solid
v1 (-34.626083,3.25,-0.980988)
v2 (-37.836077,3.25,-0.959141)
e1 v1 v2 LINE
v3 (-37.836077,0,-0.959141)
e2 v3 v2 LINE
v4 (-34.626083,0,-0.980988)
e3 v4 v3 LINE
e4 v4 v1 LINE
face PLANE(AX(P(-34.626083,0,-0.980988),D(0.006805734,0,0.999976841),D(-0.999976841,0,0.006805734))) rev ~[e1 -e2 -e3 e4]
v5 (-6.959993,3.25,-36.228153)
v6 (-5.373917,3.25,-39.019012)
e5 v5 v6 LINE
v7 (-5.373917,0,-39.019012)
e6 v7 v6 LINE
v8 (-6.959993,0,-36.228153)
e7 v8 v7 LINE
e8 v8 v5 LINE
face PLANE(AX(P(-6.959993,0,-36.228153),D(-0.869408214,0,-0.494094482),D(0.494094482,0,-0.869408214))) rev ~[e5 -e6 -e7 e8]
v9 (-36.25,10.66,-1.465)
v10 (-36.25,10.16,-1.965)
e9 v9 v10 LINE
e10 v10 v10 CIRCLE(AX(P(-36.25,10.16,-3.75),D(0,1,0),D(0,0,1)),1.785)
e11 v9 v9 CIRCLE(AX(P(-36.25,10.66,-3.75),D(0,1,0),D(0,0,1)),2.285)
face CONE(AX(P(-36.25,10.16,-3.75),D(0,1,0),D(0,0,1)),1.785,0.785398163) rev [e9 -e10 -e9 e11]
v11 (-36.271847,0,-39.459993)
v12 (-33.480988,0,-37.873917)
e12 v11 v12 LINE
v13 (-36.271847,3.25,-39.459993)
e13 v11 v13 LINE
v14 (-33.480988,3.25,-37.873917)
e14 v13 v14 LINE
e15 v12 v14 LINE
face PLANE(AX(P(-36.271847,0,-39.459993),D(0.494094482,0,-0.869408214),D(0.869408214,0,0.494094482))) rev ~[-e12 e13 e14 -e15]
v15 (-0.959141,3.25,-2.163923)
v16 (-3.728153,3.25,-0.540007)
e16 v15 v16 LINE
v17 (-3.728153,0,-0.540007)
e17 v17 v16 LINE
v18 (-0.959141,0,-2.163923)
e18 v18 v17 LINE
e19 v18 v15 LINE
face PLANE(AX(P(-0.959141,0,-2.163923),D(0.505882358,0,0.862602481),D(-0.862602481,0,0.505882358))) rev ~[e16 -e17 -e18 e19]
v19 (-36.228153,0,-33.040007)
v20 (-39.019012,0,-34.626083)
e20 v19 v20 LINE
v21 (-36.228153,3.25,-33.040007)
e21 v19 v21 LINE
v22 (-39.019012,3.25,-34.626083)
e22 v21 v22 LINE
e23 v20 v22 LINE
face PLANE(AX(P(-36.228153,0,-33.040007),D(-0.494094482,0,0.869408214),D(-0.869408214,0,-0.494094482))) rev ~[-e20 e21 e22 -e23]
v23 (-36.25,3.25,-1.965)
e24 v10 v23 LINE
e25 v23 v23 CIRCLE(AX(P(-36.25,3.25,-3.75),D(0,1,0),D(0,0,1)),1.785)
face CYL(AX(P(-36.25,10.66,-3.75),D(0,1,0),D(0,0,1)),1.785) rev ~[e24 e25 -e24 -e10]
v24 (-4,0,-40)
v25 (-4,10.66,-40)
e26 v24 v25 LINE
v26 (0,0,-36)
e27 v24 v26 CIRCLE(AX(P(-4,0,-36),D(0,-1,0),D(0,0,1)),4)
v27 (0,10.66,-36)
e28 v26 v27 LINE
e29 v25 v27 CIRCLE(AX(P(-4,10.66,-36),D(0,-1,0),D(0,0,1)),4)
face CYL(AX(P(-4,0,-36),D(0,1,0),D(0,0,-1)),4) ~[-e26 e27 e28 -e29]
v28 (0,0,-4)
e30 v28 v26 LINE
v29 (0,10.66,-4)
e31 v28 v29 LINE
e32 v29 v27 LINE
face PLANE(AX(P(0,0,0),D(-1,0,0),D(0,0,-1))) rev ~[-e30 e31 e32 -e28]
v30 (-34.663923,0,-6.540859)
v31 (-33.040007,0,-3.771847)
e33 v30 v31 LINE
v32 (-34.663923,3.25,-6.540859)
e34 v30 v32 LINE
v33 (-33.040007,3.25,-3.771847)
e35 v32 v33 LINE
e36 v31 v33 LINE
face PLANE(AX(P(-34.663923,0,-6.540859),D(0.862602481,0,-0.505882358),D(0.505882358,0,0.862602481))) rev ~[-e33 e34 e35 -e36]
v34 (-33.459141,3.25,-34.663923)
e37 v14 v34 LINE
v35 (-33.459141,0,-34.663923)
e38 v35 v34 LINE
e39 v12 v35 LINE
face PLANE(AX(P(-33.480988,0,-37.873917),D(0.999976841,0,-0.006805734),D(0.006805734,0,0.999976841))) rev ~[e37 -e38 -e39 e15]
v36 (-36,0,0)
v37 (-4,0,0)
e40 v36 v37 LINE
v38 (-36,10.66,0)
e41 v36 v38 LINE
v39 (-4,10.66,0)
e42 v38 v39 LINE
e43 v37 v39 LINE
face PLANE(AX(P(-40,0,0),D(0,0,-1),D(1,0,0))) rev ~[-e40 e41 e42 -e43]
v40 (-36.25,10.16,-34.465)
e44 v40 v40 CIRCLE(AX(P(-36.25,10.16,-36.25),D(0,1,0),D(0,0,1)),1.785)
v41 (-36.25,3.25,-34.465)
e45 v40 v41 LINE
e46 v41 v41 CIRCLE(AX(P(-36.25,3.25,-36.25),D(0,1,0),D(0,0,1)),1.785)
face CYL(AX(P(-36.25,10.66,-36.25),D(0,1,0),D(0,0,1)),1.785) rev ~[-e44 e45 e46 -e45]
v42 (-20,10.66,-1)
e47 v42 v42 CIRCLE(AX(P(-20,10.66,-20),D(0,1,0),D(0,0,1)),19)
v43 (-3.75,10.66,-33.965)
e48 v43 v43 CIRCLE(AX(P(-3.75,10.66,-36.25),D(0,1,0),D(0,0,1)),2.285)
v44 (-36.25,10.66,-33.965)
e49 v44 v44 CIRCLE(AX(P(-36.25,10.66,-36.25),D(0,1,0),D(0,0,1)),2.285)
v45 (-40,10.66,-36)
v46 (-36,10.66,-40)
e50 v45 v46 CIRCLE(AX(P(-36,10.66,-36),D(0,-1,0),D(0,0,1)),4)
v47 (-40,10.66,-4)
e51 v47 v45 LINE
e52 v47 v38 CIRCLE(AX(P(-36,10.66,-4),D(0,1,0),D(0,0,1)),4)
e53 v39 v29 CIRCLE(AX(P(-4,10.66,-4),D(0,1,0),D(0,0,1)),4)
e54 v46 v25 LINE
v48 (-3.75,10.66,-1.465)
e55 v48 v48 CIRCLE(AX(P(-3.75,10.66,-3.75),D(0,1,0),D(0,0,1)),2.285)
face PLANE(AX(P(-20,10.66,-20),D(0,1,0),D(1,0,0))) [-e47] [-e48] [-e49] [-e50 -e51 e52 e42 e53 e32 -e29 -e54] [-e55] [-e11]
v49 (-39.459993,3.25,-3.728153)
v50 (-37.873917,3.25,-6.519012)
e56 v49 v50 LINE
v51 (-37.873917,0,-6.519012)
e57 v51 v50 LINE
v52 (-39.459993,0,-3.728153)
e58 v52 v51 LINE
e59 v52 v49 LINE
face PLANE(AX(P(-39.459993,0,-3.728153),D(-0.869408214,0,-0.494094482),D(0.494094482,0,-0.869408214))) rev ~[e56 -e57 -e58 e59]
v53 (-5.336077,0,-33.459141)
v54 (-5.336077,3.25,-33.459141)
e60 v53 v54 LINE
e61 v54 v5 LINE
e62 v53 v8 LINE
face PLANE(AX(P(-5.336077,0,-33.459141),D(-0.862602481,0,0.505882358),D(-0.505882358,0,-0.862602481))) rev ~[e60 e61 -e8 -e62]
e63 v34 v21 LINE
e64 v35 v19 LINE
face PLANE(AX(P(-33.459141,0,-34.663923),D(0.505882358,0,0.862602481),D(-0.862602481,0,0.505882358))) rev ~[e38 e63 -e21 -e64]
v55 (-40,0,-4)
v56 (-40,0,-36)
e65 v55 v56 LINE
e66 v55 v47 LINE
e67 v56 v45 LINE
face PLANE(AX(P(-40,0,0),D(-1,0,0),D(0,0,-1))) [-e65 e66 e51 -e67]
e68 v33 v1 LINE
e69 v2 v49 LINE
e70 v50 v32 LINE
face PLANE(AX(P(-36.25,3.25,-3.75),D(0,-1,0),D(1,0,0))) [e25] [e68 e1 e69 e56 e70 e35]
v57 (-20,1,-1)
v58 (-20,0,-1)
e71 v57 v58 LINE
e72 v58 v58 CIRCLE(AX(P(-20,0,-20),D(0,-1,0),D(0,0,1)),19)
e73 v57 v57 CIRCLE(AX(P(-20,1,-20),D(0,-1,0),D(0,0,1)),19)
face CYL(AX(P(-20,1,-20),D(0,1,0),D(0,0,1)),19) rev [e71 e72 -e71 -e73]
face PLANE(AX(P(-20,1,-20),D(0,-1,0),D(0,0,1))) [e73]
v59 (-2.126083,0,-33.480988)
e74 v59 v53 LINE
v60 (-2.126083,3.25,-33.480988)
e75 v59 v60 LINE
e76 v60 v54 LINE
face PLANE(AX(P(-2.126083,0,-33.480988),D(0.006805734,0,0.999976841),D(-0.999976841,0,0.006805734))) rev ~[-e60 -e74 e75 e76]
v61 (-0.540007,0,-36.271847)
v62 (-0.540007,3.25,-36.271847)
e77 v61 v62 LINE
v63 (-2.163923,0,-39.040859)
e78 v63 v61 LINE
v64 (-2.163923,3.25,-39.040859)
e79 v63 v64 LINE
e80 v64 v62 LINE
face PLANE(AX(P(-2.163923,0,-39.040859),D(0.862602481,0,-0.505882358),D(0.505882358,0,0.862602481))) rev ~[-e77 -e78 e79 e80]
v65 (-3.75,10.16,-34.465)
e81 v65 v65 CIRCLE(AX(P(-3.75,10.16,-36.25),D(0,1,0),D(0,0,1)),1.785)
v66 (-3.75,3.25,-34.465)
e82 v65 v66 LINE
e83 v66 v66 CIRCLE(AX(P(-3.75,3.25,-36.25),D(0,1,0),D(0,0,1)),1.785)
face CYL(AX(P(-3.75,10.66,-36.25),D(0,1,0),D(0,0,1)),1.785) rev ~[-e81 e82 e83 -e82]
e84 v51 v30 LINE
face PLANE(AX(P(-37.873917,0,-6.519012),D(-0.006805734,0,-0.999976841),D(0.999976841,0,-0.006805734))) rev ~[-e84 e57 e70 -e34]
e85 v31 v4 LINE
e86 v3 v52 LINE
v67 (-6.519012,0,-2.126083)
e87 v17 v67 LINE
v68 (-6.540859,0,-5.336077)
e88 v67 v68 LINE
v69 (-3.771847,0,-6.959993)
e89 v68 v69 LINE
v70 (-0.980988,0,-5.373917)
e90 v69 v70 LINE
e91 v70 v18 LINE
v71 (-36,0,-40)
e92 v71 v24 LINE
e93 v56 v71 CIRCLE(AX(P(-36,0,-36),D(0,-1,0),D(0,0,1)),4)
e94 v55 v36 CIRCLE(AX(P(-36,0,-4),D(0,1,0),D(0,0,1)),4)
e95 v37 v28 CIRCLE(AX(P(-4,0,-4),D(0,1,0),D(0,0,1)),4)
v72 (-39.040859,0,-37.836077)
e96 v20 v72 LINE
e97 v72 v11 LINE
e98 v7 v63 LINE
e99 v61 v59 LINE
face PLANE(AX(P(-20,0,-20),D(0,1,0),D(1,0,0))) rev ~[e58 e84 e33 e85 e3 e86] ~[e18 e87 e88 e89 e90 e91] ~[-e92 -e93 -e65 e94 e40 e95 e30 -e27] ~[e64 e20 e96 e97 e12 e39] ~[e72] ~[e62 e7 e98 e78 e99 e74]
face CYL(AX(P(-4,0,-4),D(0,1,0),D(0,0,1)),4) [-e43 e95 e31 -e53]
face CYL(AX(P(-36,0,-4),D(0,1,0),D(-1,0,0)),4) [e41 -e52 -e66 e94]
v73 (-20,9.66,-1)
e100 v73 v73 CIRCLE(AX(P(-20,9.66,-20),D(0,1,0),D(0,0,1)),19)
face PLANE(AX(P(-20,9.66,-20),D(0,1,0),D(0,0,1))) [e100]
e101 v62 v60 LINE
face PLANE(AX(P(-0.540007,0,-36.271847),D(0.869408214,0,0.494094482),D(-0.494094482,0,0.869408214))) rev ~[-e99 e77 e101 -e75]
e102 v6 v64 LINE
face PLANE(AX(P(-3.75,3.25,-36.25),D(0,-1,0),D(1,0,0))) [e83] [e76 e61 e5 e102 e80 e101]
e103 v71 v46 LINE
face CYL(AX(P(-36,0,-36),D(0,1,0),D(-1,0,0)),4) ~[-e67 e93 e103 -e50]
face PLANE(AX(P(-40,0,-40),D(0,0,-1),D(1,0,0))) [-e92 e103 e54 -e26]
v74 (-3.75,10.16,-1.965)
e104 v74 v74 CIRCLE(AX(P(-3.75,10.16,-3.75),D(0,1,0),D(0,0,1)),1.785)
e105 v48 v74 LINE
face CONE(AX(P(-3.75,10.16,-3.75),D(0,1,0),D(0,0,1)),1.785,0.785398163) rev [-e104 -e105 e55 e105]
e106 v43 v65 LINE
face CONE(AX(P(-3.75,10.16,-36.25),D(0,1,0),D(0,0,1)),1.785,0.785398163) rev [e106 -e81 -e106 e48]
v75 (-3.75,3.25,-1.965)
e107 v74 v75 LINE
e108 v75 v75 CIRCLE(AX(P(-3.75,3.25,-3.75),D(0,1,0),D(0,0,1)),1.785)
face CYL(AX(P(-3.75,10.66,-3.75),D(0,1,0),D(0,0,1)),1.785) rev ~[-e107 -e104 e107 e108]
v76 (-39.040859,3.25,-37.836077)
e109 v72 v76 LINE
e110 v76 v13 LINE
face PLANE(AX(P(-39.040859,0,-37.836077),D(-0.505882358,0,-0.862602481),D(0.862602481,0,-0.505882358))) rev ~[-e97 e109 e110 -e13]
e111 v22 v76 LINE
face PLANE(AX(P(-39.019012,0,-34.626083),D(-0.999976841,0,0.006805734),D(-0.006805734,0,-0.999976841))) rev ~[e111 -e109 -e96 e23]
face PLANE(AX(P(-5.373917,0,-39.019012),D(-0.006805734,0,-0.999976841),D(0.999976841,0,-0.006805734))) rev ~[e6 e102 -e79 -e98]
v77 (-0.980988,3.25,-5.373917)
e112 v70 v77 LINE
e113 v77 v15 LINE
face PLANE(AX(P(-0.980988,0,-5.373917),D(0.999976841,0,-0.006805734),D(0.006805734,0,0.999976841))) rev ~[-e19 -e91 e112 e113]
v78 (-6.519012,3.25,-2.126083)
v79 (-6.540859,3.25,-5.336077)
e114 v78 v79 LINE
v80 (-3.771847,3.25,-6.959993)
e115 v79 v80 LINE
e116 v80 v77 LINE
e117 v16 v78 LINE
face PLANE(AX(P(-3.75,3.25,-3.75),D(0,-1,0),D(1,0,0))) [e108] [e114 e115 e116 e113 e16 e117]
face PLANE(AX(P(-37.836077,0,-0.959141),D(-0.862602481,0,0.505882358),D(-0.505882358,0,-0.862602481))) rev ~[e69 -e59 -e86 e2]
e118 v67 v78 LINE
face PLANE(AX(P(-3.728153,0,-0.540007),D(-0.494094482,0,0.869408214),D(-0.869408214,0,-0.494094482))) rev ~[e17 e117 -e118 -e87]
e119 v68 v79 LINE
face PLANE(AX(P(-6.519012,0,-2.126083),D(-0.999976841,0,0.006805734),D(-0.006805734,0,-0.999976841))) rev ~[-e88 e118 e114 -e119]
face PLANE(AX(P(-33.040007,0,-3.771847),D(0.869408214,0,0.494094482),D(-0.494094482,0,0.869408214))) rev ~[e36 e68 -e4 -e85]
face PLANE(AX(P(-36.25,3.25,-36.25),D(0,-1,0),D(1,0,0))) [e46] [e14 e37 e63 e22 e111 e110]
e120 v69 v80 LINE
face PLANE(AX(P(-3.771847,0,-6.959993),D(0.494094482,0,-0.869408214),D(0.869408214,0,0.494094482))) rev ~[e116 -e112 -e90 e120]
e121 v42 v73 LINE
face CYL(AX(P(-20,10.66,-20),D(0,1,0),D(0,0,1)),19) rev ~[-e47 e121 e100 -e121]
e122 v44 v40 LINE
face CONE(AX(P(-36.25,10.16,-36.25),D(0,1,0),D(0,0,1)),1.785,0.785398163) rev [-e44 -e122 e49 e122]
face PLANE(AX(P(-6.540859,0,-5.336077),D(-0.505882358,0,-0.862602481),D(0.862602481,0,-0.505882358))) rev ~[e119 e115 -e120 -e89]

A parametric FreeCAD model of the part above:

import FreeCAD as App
import Part
import Sketcher
Q = App.Units.Quantity


def edges_at(feature, points):
    """Names of the edges that pass closest to the given points."""
    edges = feature.Shape.Edges
    near = lambda p: min(range(len(edges)), key=lambda i: edges[i].distToShape(Part.Vertex(*p))[0])
    return sorted({f"Edge{near(p) + 1}" for p in points})


def add_polygon(sketch, points):
    """Adds a closed chain of lines whose ends are joined by coincident constraints."""
    first, n = sketch.GeometryCount, len(points)
    for a, b in zip(points, points[1:] + points[:1]):
        sketch.addGeometry(Part.LineSegment(App.Vector(*a, 0), App.Vector(*b, 0)), False)
    for i in range(n):
        sketch.addConstraint(Sketcher.Constraint("Coincident", first + i, 2, first + (i + 1) % n, 1))

doc = App.newDocument("Part")
body = doc.addObject("PartDesign::Body", "Body")

# Sketch on XZ plane
sketch1 = body.newObject("Sketcher::SketchObject", "Sketch")
sketch1.AttachmentSupport = (doc.getObject("XZ_Plane"), [""])
sketch1.MapMode = "FlatFace"
add_polygon(sketch1, [(-40, -40), (-40, 0), (0, 0), (0, -40)])  # lines 0-3
sketch1.addConstraint(Sketcher.Constraint("Vertical", 0))
sketch1.addConstraint(Sketcher.Constraint("Horizontal", 1))
sketch1.addConstraint(Sketcher.Constraint("Vertical", 2))
sketch1.addConstraint(Sketcher.Constraint("Horizontal", 3))
sketch1.addConstraint(Sketcher.Constraint("Coincident", 1, 2, -1, 1))
sketch1.addConstraint(Sketcher.Constraint("Equal", 3, 0))
sketch1.addConstraint(Sketcher.Constraint("DistanceX", 1, 1, 1, 2, Q("40 mm")))
pad1 = body.newObject("PartDesign::Pad", "Pad")
pad1.Profile = sketch1
pad1.Length = 10.66
pad1.Reversed = True

# Sketch on XZ plane
sketch2 = body.newObject("Sketcher::SketchObject", "Sketch001")
sketch2.AttachmentSupport = (doc.getObject("XZ_Plane"), [""])
sketch2.MapMode = "FlatFace"
sketch2.AttachmentOffset = App.Placement(App.Vector(0, 0, -10.66), App.Rotation())
sketch2.addGeometry(Part.Circle(App.Vector(-20, -20, 0), App.Vector(0, 0, 1), 19), False)
sketch2.addConstraint(Sketcher.Constraint("Diameter", 0, Q("38 mm")))
sketch2.addConstraint(Sketcher.Constraint("DistanceX", 0, 3, -1, 1, Q("20 mm")))
sketch2.addConstraint(Sketcher.Constraint("DistanceY", 0, 3, -1, 1, Q("20 mm")))
pocket1 = body.newObject("PartDesign::Pocket", "Pocket")
pocket1.Profile = sketch2
pocket1.Length = 1
pocket1.Reversed = True

# Sketch on XZ plane
sketch3 = body.newObject("Sketcher::SketchObject", "Sketch002")
sketch3.AttachmentSupport = (doc.getObject("XZ_Plane"), [""])
sketch3.MapMode = "FlatFace"
sketch3.AttachmentOffset = App.Placement(App.Vector(0, 0, -1), App.Rotation())
sketch3.addGeometry(Part.Circle(App.Vector(-20, -20, 0), App.Vector(0, 0, 1), 19), False)
sketch3.addConstraint(Sketcher.Constraint("Diameter", 0, Q("38 mm")))
sketch3.addConstraint(Sketcher.Constraint("DistanceX", 0, 3, -1, 1, Q("20 mm")))
sketch3.addConstraint(Sketcher.Constraint("DistanceY", 0, 3, -1, 1, Q("20 mm")))
pocket2 = body.newObject("PartDesign::Pocket", "Pocket001")
pocket2.Profile = sketch3
pocket2.Length = 1
pocket2.Reversed = True

# Sketch on XZ plane
sketch4 = body.newObject("Sketcher::SketchObject", "Sketch003")
sketch4.AttachmentSupport = (doc.getObject("XZ_Plane"), [""])
sketch4.MapMode = "FlatFace"
sketch4.AttachmentOffset = App.Placement(App.Vector(0, 0, -10.66), App.Rotation())
sketch4.addGeometry(Part.Circle(App.Vector(-36.2, -36.2, 0), App.Vector(0, 0, 1), 1.8), False)
sketch4.addGeometry(Part.Circle(App.Vector(-3.8, -36.2, 0), App.Vector(0, 0, 1), 1.8), False)
sketch4.addGeometry(Part.Circle(App.Vector(-3.8, -3.8, 0), App.Vector(0, 0, 1), 1.8), False)
sketch4.addGeometry(Part.Circle(App.Vector(-36.2, -3.8, 0), App.Vector(0, 0, 1), 1.8), False)
sketch4.addConstraint(Sketcher.Constraint("Equal", 0, 1))
sketch4.addConstraint(Sketcher.Constraint("Equal", 1, 2))
sketch4.addConstraint(Sketcher.Constraint("Equal", 2, 3))
sketch4.addConstraint(Sketcher.Constraint("Horizontal", 0, 3, 1, 3))
sketch4.addConstraint(Sketcher.Constraint("Horizontal", 2, 3, 3, 3))
sketch4.addConstraint(Sketcher.Constraint("Vertical", 1, 3, 2, 3))
sketch4.addConstraint(Sketcher.Constraint("Vertical", 0, 3, 3, 3))
sketch4.addConstraint(Sketcher.Constraint("Diameter", 0, Q("3.57 mm")))
sketch4.addConstraint(Sketcher.Constraint("DistanceX", 0, 3, 1, 3, Q("32.5 mm")))
sketch4.addConstraint(Sketcher.Constraint("DistanceY", 1, 3, 2, 3, Q("32.5 mm")))
sketch4.addConstraint(Sketcher.Constraint("DistanceX", 0, 3, -1, 1, Q("36.25 mm")))
sketch4.addConstraint(Sketcher.Constraint("DistanceY", 0, 3, -1, 1, Q("36.25 mm")))
pocket3 = body.newObject("PartDesign::Pocket", "Pocket002")
pocket3.Profile = sketch4
pocket3.Type = "ThroughAll"
pocket3.Reversed = True

# Sketch on XZ plane
sketch5 = body.newObject("Sketcher::SketchObject", "Sketch004")
sketch5.AttachmentSupport = (doc.getObject("XZ_Plane"), [""])
sketch5.MapMode = "FlatFace"
add_polygon(sketch5, [(-39, -34.6), (-39, -37.8), (-36.3, -39.5), (-33.5, -37.9), (-33.5, -34.7), (-36.2, -33)])  # lines 0-5
add_polygon(sketch5, [(-34.6, -1), (-37.8, -1), (-39.5, -3.7), (-37.9, -6.5), (-34.7, -6.5), (-33, -3.8)])  # lines 6-11
add_polygon(sketch5, [(-5.4, -39), (-2.2, -39), (-0.5, -36.3), (-2.1, -33.5), (-5.3, -33.5), (-7, -36.2)])  # lines 12-17
add_polygon(sketch5, [(-1, -5.4), (-1, -2.2), (-3.7, -0.5), (-6.5, -2.1), (-6.5, -5.3), (-3.8, -7)])  # lines 18-23
sketch5.addConstraint(Sketcher.Constraint("Parallel", 0, 3))
sketch5.addConstraint(Sketcher.Constraint("Parallel", 1, 4))
sketch5.addConstraint(Sketcher.Constraint("Parallel", 2, 5))
sketch5.addConstraint(Sketcher.Constraint("Perpendicular", 3, 6))
sketch5.addConstraint(Sketcher.Constraint("Perpendicular", 4, 7))
sketch5.addConstraint(Sketcher.Constraint("Perpendicular", 5, 8))
sketch5.addConstraint(Sketcher.Constraint("Parallel", 6, 9))
sketch5.addConstraint(Sketcher.Constraint("Parallel", 7, 10))
sketch5.addConstraint(Sketcher.Constraint("Parallel", 8, 11))
sketch5.addConstraint(Sketcher.Constraint("Parallel", 9, 12))
sketch5.addConstraint(Sketcher.Constraint("Parallel", 10, 13))
sketch5.addConstraint(Sketcher.Constraint("Parallel", 11, 14))
sketch5.addConstraint(Sketcher.Constraint("Parallel", 12, 15))
sketch5.addConstraint(Sketcher.Constraint("Parallel", 13, 16))
sketch5.addConstraint(Sketcher.Constraint("Parallel", 14, 17))
sketch5.addConstraint(Sketcher.Constraint("Perpendicular", 15, 18))
sketch5.addConstraint(Sketcher.Constraint("Perpendicular", 16, 19))
sketch5.addConstraint(Sketcher.Constraint("Perpendicular", 17, 20))
sketch5.addConstraint(Sketcher.Constraint("Parallel", 18, 21))
sketch5.addConstraint(Sketcher.Constraint("Parallel", 19, 22))
sketch5.addConstraint(Sketcher.Constraint("Parallel", 20, 23))
sketch5.addConstraint(Sketcher.Constraint("Equal", 0, 1))
sketch5.addConstraint(Sketcher.Constraint("Equal", 1, 2))
sketch5.addConstraint(Sketcher.Constraint("Equal", 2, 3))
sketch5.addConstraint(Sketcher.Constraint("Equal", 5, 6))
sketch5.addConstraint(Sketcher.Constraint("Equal", 6, 7))
sketch5.addConstraint(Sketcher.Constraint("Equal", 7, 8))
sketch5.addConstraint(Sketcher.Constraint("Equal", 8, 9))
sketch5.addConstraint(Sketcher.Constraint("Equal", 11, 12))
sketch5.addConstraint(Sketcher.Constraint("Equal", 12, 13))
sketch5.addConstraint(Sketcher.Constraint("Equal", 13, 14))
sketch5.addConstraint(Sketcher.Constraint("Equal", 14, 15))
sketch5.addConstraint(Sketcher.Constraint("Equal", 17, 18))
sketch5.addConstraint(Sketcher.Constraint("Equal", 18, 19))
sketch5.addConstraint(Sketcher.Constraint("Equal", 19, 20))
sketch5.addConstraint(Sketcher.Constraint("Equal", 20, 21))
sketch5.addConstraint(Sketcher.Constraint("DistanceX", 0, 2, -1, 1, Q("39.040859 mm")))
sketch5.addConstraint(Sketcher.Constraint("DistanceX", 3, 2, -1, 1, Q("33.459141 mm")))
sketch5.addConstraint(Sketcher.Constraint("DistanceY", 6, 2, -1, 1, Q("0.959141 mm")))
sketch5.addConstraint(Sketcher.Constraint("DistanceY", 12, 2, -1, 1, Q("39.040859 mm")))
sketch5.addConstraint(Sketcher.Constraint("DistanceX", 18, 2, -1, 1, Q("0.959141 mm")))
sketch5.addConstraint(Sketcher.Constraint("DistanceX", 1, 2, 2, 2, Q("2.790859 mm")))
sketch5.addConstraint(Sketcher.Constraint("DistanceX", 0, 2, 2, 2, Q("5.559871 mm")))
sketch5.addConstraint(Sketcher.Constraint("DistanceY", 2, 2, 0, 2, Q("0.03784 mm")))
sketch5.addConstraint(Sketcher.Constraint("DistanceX", 6, 2, 2, 2, Q("4.355089 mm")))
sketch5.addConstraint(Sketcher.Constraint("DistanceY", 5, 2, 7, 2, Q("30.89793 mm")))
sketch5.addConstraint(Sketcher.Constraint("DistanceX", 4, 2, 12, 2, Q("34.06423 mm")))
sketch5.addConstraint(Sketcher.Constraint("DistanceY", 10, 2, 19, 2, Q("3.23184 mm")))
pocket4 = body.newObject("PartDesign::Pocket", "Pocket003")
pocket4.Profile = sketch5
pocket4.Length = 3.25
doc.recompute()

chamfer = body.newObject("PartDesign::Chamfer", "Chamfer")
chamfer.Base = (pocket4, edges_at(pocket4, [
    (-36.25, 10.66, -5.535),
    (-3.75, 10.66, -5.535),
    (-3.75, 10.66, -38.035),
    (-36.25, 10.66, -38.035),
]))
chamfer.Size = 0.5
doc.recompute()

fillet = body.newObject("PartDesign::Fillet", "Fillet")
fillet.Base = (chamfer, edges_at(chamfer, [
    (0, 5.33, 0),
    (-40, 5.33, 0),
    (-40, 5.33, -40),
    (0, 5.33, -40),
]))
fillet.Radius = 4

doc.recompute()
